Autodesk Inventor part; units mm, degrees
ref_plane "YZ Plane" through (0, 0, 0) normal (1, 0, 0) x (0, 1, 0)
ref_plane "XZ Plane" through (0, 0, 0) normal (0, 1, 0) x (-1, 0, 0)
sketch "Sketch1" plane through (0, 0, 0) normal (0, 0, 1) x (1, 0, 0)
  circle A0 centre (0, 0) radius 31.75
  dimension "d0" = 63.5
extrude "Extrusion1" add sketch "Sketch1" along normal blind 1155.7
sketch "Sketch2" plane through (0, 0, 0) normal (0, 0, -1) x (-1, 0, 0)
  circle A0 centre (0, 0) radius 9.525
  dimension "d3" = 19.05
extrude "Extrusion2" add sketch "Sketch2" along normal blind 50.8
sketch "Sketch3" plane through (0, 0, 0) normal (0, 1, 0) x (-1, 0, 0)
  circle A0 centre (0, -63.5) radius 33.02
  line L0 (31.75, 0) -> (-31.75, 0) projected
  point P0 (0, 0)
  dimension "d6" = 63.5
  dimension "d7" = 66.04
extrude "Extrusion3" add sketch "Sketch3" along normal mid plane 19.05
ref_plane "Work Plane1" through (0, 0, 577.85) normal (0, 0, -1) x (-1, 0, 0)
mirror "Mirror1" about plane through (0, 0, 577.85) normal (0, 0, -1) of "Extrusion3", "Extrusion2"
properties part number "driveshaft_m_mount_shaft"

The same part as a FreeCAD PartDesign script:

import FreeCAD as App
import Part
import Sketcher
Q = App.Units.Quantity

doc = App.newDocument("Part")
body = doc.addObject("PartDesign::Body", "Body")

# Sketch on XY plane
sketch1 = body.newObject("Sketcher::SketchObject", "Sketch")
sketch1.AttachmentSupport = (doc.getObject("XY_Plane"), [""])
sketch1.MapMode = "FlatFace"
sketch1.addGeometry(Part.Circle(App.Vector(0, 0, 0), App.Vector(0, 0, 1), 32), False)
sketch1.addConstraint(Sketcher.Constraint("Coincident", 0, 3, -1, 1))
sketch1.addConstraint(Sketcher.Constraint("Diameter", 0, Q("2.5 in")))
pad1 = body.newObject("PartDesign::Pad", "Pad")
pad1.Profile = sketch1
pad1.Length = Q("45.5 in")

# Sketch on XY plane
sketch2 = body.newObject("Sketcher::SketchObject", "Sketch001")
sketch2.AttachmentSupport = (doc.getObject("XY_Plane"), [""])
sketch2.MapMode = "FlatFace"
sketch2.addGeometry(Part.Circle(App.Vector(0, 0, 0), App.Vector(0, 0, 1), 10), False)
sketch2.addConstraint(Sketcher.Constraint("Coincident", 0, 3, -1, 1))
sketch2.addConstraint(Sketcher.Constraint("Diameter", 0, Q("0.75 in")))
pad2 = body.newObject("PartDesign::Pad", "Pad001")
pad2.Profile = sketch2
pad2.Length = Q("2 in")
pad2.Reversed = True

# Sketch on XZ plane
sketch3 = body.newObject("Sketcher::SketchObject", "Sketch002")
sketch3.AttachmentSupport = (doc.getObject("XZ_Plane"), [""])
sketch3.MapMode = "FlatFace"
sketch3.addGeometry(Part.Circle(App.Vector(0, -64, 0), App.Vector(0, 0, 1), 33), False)
sketch3.addConstraint(Sketcher.Constraint("PointOnObject", 0, 3, -2))
sketch3.addConstraint(Sketcher.Constraint("Diameter", 0, Q("2.6 in")))
sketch3.addConstraint(Sketcher.Constraint("DistanceY", 0, 3, -1, 1, Q("2.5 in")))
pad3 = body.newObject("PartDesign::Pad", "Pad002")
pad3.Profile = sketch3
pad3.Length = Q("0.75 in")
pad3.Midplane = True
doc.recompute()

datumplane = body.newObject("PartDesign::Plane", "DatumPlane")
datumplane.AttachmentSupport = (doc.getObject("XY_Plane"), [""])
datumplane.MapMode = "FlatFace"
datumplane.AttachmentOffset = App.Placement(App.Vector(0, 0, 22.75 * 25.4), App.Rotation())
mirrored = body.newObject("PartDesign::Mirrored", "Mirrored")
mirrored.Originals = [pad3, pad2]
mirrored.MirrorPlane = (datumplane, [""])
body.Tip = mirrored

doc.recompute()
